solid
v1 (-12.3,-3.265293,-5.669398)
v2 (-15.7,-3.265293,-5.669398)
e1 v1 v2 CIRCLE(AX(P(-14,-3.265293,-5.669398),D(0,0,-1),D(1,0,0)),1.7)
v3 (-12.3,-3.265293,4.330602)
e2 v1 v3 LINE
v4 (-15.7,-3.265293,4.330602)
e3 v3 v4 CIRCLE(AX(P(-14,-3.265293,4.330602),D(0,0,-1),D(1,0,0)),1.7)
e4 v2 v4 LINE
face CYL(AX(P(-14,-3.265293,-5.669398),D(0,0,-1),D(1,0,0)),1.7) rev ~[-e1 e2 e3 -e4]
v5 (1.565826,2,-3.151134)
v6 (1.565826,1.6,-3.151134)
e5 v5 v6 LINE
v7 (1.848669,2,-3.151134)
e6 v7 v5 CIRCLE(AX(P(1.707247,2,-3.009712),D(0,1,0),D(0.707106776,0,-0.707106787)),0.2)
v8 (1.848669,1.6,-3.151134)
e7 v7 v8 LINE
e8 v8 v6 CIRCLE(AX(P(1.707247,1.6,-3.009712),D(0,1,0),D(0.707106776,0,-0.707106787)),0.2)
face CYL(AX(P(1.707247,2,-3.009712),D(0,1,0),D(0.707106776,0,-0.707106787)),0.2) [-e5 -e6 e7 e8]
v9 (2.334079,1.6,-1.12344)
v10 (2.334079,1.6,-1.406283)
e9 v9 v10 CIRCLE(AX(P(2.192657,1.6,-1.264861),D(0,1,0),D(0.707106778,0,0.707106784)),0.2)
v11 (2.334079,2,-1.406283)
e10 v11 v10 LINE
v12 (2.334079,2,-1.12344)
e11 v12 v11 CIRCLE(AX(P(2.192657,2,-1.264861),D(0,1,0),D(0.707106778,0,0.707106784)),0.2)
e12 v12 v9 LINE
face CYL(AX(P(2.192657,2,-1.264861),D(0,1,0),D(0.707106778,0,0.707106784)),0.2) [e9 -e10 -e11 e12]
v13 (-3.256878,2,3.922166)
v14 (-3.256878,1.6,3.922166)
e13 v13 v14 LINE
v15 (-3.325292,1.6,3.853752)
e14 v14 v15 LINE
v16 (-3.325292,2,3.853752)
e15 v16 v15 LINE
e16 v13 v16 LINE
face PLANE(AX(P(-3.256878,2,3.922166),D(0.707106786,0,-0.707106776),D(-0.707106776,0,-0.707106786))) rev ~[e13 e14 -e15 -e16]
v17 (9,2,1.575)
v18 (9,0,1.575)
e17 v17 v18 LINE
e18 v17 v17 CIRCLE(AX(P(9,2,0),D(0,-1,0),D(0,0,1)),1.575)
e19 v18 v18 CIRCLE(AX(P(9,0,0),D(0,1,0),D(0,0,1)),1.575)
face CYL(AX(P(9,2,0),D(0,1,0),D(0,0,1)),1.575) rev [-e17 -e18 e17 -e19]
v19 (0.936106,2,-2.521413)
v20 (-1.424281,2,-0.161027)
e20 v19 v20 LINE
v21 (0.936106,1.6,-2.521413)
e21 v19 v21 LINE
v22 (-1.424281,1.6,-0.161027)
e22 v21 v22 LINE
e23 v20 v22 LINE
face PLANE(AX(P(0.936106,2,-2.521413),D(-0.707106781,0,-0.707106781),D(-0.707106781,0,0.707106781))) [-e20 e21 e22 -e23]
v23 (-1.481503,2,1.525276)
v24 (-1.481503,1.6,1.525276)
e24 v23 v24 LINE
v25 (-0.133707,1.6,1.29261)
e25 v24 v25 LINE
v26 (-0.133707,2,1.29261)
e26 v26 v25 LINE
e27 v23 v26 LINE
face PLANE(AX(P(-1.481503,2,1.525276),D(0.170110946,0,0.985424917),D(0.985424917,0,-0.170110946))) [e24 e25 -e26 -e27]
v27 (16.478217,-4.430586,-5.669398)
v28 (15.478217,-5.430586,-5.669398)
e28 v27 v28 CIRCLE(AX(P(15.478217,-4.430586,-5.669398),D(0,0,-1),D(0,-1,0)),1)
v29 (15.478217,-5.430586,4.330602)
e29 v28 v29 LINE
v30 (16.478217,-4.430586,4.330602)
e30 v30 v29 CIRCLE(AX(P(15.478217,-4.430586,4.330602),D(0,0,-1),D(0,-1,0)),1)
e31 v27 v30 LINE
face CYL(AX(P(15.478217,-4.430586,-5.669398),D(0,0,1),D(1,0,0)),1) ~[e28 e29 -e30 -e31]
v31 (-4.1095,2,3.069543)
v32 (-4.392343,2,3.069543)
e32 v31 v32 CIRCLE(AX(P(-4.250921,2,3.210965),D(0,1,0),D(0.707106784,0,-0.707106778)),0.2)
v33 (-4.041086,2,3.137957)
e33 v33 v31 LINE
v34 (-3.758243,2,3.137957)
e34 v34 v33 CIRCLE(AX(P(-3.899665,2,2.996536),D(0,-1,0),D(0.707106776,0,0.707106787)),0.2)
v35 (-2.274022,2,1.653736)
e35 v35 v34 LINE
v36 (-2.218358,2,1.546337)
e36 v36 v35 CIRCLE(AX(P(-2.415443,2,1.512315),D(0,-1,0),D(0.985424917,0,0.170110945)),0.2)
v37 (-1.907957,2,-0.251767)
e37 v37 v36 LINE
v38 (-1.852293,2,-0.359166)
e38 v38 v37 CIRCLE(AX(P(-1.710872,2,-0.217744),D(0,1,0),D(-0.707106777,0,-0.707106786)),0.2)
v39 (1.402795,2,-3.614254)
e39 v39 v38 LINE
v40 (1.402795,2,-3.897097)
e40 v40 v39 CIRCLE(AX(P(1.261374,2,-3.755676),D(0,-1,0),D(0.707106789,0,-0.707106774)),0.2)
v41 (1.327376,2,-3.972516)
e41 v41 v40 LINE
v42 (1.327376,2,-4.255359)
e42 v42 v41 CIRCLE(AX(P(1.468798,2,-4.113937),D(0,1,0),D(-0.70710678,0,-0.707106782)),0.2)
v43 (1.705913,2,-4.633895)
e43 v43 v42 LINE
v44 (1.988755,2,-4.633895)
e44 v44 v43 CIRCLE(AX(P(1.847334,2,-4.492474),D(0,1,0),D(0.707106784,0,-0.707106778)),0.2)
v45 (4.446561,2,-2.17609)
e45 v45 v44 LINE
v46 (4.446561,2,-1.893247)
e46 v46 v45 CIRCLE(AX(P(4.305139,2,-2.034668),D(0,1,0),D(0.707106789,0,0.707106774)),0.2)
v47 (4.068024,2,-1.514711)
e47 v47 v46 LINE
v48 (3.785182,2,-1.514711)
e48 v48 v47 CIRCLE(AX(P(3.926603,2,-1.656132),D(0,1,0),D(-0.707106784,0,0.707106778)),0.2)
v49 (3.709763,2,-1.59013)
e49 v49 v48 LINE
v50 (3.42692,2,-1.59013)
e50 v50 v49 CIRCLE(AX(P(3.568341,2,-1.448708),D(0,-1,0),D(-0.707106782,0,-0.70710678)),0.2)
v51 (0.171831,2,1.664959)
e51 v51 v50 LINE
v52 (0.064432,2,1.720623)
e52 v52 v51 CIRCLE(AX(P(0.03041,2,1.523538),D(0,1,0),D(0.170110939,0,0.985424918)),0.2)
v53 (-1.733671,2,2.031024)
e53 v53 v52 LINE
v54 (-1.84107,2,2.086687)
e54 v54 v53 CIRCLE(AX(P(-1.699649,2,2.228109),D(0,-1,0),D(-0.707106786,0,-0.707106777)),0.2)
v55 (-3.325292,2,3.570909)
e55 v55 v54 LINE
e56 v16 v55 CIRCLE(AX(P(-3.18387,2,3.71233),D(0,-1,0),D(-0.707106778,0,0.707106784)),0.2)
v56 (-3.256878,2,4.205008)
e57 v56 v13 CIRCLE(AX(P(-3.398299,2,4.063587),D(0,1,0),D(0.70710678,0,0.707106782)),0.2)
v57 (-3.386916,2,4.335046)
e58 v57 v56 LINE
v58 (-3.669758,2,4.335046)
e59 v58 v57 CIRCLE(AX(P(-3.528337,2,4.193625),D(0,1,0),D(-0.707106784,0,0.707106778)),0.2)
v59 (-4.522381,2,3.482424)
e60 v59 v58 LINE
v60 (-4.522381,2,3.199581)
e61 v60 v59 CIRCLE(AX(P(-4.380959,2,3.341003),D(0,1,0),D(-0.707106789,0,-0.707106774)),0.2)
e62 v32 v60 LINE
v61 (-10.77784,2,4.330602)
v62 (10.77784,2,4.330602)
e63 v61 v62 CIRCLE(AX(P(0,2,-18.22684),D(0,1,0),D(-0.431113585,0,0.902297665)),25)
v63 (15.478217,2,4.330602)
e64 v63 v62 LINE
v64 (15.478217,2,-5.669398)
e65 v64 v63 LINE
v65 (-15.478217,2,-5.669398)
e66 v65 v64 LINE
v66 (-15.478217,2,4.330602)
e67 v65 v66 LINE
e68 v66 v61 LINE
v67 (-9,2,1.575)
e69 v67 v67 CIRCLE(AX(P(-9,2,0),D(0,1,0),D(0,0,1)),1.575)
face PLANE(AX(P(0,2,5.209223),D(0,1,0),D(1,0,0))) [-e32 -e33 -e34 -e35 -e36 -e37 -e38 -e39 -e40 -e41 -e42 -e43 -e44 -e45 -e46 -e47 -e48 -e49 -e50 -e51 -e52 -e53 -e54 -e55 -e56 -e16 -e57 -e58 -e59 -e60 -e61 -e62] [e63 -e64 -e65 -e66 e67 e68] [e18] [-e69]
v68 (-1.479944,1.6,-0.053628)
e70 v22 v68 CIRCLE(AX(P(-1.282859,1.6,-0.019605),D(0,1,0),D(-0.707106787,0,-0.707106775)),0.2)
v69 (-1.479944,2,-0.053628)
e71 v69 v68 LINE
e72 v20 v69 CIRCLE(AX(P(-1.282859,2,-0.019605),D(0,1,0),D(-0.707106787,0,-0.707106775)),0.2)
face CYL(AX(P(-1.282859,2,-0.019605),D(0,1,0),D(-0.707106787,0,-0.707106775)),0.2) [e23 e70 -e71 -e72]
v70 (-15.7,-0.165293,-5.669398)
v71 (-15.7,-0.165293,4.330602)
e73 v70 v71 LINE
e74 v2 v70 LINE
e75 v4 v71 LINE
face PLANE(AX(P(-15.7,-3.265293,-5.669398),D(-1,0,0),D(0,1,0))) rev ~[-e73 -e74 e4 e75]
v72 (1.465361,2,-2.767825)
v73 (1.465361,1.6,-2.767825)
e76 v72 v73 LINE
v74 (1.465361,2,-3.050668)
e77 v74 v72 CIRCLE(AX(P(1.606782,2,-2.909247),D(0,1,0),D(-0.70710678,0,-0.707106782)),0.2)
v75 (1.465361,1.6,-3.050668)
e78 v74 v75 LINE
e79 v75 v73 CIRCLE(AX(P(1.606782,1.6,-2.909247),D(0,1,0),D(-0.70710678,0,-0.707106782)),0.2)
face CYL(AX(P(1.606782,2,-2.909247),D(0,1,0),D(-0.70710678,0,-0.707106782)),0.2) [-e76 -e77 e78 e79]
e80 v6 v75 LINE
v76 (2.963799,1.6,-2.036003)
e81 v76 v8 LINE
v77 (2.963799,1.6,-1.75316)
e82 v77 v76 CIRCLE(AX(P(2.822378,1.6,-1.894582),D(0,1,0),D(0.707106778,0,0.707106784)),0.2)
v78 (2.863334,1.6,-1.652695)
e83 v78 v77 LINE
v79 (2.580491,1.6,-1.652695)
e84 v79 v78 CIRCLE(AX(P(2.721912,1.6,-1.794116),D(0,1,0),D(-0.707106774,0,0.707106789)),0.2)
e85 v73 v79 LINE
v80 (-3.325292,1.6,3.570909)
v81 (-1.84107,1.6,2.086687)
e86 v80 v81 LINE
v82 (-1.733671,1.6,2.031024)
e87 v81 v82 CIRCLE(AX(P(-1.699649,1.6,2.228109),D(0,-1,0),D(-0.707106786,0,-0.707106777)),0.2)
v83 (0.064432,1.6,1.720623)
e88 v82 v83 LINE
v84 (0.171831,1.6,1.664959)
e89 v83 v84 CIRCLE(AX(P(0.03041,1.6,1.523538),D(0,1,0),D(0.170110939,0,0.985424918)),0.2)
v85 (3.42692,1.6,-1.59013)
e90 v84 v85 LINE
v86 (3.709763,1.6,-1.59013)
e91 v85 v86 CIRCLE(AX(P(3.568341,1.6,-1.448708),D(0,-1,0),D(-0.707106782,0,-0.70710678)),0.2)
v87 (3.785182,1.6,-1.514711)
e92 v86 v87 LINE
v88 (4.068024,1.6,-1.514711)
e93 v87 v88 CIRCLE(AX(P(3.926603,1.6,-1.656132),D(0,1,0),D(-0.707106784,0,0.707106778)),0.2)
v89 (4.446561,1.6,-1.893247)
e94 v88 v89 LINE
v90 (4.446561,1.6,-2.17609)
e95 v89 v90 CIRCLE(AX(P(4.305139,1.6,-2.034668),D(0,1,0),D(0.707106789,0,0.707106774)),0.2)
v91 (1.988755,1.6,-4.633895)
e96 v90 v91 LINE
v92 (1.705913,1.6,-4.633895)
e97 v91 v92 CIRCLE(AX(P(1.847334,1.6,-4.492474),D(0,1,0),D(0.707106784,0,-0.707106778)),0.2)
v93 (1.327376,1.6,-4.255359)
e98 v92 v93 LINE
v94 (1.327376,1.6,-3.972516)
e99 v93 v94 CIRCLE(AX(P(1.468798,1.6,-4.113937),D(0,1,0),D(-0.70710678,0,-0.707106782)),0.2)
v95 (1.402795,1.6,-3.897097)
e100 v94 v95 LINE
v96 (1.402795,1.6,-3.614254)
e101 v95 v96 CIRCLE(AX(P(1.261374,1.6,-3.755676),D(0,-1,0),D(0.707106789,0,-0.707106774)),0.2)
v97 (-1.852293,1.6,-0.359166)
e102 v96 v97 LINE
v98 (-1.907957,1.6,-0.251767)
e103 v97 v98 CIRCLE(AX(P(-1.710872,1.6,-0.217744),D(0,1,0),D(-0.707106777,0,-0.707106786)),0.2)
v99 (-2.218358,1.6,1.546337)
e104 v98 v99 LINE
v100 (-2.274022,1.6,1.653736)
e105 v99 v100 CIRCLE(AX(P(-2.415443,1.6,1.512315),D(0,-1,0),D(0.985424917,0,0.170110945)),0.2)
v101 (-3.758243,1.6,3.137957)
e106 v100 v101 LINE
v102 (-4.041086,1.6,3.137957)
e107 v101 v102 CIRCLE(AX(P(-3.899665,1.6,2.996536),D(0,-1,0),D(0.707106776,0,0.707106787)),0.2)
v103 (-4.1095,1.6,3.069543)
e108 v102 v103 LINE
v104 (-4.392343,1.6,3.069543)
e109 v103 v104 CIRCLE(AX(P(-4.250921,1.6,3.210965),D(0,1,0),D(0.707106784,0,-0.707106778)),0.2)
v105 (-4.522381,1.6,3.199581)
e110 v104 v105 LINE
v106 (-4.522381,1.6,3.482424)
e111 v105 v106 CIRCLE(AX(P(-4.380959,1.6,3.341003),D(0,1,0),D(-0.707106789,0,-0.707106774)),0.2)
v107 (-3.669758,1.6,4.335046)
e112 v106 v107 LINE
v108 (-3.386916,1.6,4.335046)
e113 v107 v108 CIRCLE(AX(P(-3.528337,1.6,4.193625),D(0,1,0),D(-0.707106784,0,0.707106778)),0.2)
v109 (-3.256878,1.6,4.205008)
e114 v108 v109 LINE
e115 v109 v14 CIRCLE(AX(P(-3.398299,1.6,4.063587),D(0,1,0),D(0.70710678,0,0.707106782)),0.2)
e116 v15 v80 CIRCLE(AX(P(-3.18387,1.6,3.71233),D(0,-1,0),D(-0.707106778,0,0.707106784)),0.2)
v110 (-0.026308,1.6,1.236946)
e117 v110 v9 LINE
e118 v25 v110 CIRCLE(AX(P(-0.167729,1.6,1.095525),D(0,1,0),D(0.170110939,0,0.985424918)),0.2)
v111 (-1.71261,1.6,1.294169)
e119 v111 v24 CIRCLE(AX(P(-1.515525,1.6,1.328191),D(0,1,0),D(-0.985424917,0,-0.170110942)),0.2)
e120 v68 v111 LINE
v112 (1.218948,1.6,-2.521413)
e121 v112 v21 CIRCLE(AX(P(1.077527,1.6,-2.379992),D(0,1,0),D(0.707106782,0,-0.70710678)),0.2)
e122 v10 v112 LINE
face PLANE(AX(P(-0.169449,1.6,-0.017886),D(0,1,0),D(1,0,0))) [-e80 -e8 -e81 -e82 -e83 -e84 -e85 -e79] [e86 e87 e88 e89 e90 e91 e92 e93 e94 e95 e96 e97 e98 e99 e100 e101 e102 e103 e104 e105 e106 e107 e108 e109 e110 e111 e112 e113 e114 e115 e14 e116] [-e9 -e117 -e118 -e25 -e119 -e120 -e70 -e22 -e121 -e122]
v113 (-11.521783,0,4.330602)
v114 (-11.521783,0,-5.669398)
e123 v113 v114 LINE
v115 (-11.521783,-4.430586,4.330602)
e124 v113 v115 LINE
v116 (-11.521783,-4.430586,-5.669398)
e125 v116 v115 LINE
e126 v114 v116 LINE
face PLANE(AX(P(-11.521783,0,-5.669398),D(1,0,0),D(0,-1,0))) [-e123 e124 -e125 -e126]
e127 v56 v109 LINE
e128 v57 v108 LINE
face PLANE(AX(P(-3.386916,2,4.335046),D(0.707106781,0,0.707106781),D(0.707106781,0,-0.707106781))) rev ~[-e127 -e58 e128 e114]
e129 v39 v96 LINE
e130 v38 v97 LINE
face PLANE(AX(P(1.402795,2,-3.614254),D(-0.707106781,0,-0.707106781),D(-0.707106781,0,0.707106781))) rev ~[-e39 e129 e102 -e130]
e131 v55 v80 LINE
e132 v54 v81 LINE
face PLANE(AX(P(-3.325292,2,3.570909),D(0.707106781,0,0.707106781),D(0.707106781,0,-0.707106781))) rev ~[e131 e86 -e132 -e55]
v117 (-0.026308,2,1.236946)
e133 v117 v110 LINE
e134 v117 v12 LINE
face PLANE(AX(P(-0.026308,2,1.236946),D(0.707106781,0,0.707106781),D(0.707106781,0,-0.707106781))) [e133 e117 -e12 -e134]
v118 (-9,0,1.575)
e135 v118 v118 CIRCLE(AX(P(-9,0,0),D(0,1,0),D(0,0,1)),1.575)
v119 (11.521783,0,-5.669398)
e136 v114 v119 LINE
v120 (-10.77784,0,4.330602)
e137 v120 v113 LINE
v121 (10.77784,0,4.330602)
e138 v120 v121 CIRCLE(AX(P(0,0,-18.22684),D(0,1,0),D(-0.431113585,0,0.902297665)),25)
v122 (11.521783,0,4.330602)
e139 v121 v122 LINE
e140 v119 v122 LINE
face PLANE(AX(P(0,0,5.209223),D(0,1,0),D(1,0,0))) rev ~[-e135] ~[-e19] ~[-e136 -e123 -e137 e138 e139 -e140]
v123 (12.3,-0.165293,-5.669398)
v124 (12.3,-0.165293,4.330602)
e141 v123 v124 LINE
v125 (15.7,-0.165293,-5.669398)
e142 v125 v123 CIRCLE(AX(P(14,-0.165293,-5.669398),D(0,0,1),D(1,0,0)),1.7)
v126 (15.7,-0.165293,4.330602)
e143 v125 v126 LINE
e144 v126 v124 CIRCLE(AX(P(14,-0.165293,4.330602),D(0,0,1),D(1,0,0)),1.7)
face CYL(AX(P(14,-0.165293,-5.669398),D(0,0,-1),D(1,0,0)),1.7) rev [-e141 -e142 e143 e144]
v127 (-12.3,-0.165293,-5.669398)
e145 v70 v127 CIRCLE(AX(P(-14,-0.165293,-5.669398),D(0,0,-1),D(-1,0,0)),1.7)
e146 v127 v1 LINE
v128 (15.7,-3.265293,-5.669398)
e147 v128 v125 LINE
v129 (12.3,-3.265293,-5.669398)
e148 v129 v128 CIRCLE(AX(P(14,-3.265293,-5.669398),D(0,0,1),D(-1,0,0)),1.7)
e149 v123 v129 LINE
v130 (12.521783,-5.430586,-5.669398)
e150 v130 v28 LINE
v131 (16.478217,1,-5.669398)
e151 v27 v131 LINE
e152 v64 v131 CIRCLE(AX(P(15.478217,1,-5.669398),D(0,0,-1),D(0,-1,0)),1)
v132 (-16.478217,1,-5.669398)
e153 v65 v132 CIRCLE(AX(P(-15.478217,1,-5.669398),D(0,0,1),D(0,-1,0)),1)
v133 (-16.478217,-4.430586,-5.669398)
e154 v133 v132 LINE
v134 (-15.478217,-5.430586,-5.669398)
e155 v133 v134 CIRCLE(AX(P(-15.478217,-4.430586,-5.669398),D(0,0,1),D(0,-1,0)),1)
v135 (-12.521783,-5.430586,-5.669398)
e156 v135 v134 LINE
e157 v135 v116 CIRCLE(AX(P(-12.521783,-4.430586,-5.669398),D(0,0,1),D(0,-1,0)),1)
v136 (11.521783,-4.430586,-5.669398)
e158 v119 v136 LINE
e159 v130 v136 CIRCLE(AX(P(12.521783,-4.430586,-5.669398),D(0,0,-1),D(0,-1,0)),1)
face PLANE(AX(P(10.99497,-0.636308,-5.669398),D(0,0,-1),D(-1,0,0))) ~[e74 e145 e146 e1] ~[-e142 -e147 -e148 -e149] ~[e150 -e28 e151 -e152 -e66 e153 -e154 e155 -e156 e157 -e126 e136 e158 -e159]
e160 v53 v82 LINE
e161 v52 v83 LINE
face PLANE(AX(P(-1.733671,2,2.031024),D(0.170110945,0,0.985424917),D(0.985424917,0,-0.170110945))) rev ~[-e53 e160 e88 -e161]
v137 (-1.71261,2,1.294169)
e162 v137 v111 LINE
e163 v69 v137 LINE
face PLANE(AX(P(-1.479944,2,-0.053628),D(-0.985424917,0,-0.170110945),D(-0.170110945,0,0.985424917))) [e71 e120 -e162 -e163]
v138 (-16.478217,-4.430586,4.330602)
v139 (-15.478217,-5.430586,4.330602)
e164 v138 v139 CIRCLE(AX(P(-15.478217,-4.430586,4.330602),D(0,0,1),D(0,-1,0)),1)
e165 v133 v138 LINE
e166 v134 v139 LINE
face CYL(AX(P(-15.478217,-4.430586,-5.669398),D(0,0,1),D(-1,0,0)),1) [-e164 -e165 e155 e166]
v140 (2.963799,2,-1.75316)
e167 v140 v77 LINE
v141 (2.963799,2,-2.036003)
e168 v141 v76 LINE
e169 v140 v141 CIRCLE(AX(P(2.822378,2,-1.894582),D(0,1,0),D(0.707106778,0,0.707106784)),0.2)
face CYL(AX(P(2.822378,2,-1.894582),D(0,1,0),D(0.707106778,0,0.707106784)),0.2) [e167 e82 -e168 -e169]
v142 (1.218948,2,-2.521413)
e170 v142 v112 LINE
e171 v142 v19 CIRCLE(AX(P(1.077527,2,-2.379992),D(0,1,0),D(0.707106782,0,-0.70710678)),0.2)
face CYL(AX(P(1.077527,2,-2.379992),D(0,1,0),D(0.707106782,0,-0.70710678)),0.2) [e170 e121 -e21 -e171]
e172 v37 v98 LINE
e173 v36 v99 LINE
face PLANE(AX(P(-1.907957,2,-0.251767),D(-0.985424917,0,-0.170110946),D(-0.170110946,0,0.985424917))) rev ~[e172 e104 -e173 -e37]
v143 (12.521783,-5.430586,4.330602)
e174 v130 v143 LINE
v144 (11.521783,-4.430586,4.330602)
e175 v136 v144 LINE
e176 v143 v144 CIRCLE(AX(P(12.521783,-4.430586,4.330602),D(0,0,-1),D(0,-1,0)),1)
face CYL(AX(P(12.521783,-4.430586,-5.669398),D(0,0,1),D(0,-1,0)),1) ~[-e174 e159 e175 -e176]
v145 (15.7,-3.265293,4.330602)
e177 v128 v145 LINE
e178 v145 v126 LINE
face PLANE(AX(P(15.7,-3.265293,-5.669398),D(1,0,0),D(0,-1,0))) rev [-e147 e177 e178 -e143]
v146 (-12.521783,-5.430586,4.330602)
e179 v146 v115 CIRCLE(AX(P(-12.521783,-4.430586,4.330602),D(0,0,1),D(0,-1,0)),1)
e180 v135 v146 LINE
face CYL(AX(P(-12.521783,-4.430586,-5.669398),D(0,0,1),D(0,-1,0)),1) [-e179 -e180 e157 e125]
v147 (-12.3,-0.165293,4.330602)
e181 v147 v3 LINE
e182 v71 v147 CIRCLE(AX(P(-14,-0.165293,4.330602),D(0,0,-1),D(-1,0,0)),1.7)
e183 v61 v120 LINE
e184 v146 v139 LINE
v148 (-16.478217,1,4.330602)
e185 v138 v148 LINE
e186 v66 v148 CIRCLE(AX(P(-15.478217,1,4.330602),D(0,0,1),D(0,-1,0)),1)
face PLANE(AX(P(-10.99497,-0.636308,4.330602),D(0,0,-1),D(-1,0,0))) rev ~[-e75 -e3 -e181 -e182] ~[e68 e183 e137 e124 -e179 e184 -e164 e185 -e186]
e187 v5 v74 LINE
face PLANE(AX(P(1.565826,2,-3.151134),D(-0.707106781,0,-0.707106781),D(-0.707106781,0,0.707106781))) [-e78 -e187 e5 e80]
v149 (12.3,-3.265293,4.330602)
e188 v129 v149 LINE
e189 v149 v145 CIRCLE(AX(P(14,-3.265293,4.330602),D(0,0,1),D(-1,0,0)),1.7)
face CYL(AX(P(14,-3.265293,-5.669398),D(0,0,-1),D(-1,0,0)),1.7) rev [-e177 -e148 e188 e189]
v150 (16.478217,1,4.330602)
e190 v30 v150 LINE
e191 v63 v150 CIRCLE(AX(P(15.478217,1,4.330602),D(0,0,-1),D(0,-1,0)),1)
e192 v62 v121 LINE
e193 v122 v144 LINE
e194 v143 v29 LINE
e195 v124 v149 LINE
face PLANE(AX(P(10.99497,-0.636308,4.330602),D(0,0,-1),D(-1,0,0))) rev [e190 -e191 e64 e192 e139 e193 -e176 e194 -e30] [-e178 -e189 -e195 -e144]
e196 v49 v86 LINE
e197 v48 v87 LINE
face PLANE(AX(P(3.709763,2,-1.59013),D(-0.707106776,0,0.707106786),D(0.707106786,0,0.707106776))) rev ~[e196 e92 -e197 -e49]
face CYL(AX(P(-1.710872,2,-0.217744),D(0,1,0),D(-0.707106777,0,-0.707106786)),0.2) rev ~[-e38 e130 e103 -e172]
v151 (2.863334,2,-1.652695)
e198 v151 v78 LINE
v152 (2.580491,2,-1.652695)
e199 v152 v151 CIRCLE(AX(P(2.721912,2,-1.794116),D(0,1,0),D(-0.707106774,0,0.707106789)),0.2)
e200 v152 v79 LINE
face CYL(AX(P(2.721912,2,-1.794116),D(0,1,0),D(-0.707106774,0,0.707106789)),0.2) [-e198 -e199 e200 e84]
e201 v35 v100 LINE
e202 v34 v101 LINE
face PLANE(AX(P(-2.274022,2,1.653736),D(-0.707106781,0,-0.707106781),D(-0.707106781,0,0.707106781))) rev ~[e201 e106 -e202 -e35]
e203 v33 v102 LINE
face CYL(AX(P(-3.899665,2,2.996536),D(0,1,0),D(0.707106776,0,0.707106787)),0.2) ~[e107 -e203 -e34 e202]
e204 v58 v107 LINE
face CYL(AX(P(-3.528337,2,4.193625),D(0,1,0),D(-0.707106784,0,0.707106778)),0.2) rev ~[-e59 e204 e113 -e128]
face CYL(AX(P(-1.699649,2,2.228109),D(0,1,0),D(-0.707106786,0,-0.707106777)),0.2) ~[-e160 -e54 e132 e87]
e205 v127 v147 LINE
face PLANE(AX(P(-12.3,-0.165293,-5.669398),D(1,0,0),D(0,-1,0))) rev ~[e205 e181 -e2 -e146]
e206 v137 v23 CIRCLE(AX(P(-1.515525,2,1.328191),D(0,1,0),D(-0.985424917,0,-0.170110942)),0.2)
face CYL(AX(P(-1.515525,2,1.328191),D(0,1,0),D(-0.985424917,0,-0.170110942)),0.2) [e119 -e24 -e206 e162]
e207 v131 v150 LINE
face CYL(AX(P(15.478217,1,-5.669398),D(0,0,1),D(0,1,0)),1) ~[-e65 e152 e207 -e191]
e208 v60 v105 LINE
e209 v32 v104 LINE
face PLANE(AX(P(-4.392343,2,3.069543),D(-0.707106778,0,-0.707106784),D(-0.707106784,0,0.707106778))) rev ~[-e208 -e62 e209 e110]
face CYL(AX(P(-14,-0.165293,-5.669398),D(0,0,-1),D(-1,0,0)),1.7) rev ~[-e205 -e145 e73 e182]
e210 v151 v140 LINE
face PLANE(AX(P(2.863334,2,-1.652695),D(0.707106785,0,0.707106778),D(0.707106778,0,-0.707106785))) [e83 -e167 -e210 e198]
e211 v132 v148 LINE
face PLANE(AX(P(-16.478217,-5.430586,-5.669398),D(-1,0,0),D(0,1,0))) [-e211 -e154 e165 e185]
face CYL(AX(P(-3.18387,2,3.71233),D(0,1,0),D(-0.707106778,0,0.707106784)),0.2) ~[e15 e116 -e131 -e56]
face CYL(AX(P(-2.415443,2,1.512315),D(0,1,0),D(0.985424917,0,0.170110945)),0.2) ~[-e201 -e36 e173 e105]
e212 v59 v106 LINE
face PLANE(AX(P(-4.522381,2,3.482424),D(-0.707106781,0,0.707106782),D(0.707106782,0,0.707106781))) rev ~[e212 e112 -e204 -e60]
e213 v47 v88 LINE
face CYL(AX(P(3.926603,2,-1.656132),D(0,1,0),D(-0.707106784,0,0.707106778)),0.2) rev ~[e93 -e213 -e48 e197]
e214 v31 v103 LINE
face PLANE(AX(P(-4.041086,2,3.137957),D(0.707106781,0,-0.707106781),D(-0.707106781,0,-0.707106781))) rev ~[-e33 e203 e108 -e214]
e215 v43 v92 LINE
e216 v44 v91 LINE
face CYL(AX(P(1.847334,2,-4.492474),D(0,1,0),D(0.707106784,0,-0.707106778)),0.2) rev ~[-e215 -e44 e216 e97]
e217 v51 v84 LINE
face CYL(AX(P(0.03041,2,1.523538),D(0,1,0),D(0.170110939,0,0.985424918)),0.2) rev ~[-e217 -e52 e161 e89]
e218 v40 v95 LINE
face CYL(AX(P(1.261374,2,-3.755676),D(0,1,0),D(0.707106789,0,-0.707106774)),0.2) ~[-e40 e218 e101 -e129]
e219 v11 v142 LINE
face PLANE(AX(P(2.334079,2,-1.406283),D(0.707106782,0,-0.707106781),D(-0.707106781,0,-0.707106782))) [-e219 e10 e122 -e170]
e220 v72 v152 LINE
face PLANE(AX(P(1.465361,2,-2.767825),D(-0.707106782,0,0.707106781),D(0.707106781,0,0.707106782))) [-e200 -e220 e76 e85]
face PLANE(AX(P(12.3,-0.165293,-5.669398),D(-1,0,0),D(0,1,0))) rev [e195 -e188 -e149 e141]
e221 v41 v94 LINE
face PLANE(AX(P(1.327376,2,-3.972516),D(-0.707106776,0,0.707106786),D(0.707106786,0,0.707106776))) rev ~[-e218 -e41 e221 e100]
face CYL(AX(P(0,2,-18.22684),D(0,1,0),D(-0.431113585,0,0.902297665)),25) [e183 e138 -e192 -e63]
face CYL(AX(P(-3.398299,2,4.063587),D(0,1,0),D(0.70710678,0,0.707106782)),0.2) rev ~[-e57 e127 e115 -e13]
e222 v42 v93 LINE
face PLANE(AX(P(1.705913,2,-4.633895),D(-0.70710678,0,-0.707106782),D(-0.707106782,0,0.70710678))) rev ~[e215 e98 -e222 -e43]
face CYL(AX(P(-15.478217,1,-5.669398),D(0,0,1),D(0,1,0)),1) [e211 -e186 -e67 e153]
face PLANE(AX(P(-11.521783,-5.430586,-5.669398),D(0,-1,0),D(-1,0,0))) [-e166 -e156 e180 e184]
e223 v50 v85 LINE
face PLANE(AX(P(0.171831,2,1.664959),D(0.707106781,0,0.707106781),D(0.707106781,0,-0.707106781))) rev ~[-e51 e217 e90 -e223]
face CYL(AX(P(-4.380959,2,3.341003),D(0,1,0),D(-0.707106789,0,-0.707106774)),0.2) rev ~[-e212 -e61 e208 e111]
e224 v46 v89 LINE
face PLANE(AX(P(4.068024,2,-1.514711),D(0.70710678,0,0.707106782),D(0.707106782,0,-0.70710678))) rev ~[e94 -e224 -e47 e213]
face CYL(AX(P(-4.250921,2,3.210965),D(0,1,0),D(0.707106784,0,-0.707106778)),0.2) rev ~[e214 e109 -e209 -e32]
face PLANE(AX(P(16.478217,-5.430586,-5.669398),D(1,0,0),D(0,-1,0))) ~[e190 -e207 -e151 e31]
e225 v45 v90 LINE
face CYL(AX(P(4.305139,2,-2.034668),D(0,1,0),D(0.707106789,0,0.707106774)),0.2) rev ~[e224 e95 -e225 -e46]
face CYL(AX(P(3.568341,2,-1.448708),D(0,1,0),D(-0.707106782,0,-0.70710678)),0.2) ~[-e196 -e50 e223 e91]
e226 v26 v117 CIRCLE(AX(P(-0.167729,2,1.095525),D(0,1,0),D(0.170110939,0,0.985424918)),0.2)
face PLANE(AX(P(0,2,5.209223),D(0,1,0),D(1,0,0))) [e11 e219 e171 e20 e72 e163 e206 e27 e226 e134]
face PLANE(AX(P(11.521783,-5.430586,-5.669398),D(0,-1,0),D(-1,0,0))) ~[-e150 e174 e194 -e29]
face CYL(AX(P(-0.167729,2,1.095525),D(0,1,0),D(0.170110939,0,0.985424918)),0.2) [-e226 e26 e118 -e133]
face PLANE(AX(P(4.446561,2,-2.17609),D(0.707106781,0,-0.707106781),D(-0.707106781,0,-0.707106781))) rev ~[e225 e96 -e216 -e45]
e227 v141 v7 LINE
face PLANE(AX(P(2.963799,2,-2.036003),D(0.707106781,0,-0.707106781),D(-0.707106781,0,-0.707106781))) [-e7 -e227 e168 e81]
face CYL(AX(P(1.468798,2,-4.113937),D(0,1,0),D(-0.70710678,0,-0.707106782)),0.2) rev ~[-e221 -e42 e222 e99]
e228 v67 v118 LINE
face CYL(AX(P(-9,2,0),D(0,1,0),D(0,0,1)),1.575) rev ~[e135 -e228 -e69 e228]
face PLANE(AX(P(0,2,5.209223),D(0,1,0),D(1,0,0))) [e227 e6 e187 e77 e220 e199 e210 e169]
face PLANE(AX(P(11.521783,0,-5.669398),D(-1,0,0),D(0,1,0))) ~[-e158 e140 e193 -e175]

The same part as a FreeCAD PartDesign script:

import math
import FreeCAD as App
import Part
import Sketcher
Q = App.Units.Quantity


def edges_at(feature, points):
    """Names of the edges that pass closest to the given points."""
    edges = feature.Shape.Edges
    near = lambda p: min(range(len(edges)), key=lambda i: edges[i].distToShape(Part.Vertex(*p))[0])
    return sorted({f"Edge{near(p) + 1}" for p in points})

doc = App.newDocument("Part")
body = doc.addObject("PartDesign::Body", "Body")

sketch1 = body.newObject("Sketcher::SketchObject", "Sketch")
sketch1.AttachmentSupport = (doc.getObject("XZ_Plane"), [""])
sketch1.MapMode = "FlatFace"
sketch1.addGeometry([
    Part.LineSegment(App.Vector(-13.6, -4.8, 0), App.Vector(-13.6, 4.8, 0)),
    Part.LineSegment(App.Vector(-13.6, 4.8, 0), App.Vector(13.6, 4.8, 0)),
    Part.LineSegment(App.Vector(13.6, 4.8, 0), App.Vector(13.6, -4.8, 0)),
    Part.LineSegment(App.Vector(13.6, -4.8, 0), App.Vector(-13.6, -4.8, 0)),
    Part.Circle(App.Vector(-9, 0, 0), App.Vector(0, 0, 1), 1.6),
    Part.Circle(App.Vector(9, 0, 0), App.Vector(0, 0, 1), 1.6),
], False)
sketch1.addConstraint([
    Sketcher.Constraint("Coincident", 0, 2, 1, 1),
    Sketcher.Constraint("Coincident", 1, 2, 2, 1),
    Sketcher.Constraint("Coincident", 2, 2, 3, 1),
    Sketcher.Constraint("Coincident", 3, 2, 0, 1),
    Sketcher.Constraint("Vertical", 0),
    Sketcher.Constraint("Horizontal", 1),
    Sketcher.Constraint("Vertical", 2),
    Sketcher.Constraint("Horizontal", 3),
    Sketcher.Constraint("Equal", 4, 5),
    Sketcher.Constraint("Symmetric", 4, 3, 5, 3, -1, 1),
    Sketcher.Constraint("Symmetric", 0, 2, 2, 2, -1, 1),
    Sketcher.Constraint("PointOnObject", 4, 3, -1),
    Sketcher.Constraint("Diameter", 4, Q("3.15 mm")),
    Sketcher.Constraint("DistanceX", 4, 3, -1, 1, Q("9 mm")),
    Sketcher.Constraint("DistanceX", 1, 1, 1, 2, Q("27.112782 mm")),
    Sketcher.Constraint("DistanceY", -1, 1, 0, 2, Q("4.759398 mm")),
])
pad1 = body.newObject("PartDesign::Pad", "Pad")
pad1.Profile = sketch1
pad1.Length = 2
pad1.Reversed = True

sketch2 = body.newObject("Sketcher::SketchObject", "Sketch001")
sketch2.AttachmentSupport = (doc.getObject("XY_Plane"), [""])
sketch2.MapMode = "FlatFace"
sketch2.AttachmentOffset = App.Placement(App.Vector(0, 0, -4.759398), App.Rotation())
sketch2.addGeometry([
    Part.LineSegment(App.Vector(13.6, 2, 0), App.Vector(13.6, 0, 0)),
    Part.LineSegment(App.Vector(13.6, 0, 0), App.Vector(-13.6, 0, 0)),
    Part.LineSegment(App.Vector(-13.6, 0, 0), App.Vector(-13.6, 2, 0)),
    Part.LineSegment(App.Vector(-13.6, 2, 0), App.Vector(13.6, 2, 0)),
], False)
sketch2.addConstraint([
    Sketcher.Constraint("Coincident", 0, 2, 1, 1),
    Sketcher.Constraint("Coincident", 1, 2, 2, 1),
    Sketcher.Constraint("Coincident", 2, 2, 3, 1),
    Sketcher.Constraint("Coincident", 3, 2, 0, 1),
    Sketcher.Constraint("Vertical", 0),
    Sketcher.Constraint("Horizontal", 1),
    Sketcher.Constraint("Vertical", 2),
    Sketcher.Constraint("Horizontal", 3),
    Sketcher.Constraint("Symmetric", 0, 2, 1, 2, -1, 1),
    Sketcher.Constraint("DistanceY", 0, 2, 0, 1, Q("2 mm")),
    Sketcher.Constraint("DistanceX", 1, 2, 1, 1, Q("27.112782 mm")),
])
pad2 = body.newObject("PartDesign::Pad", "Pad001")
pad2.Profile = sketch2
pad2.Length = 0.91
pad2.Reversed = True

sketch3 = body.newObject("Sketcher::SketchObject", "Sketch002")
sketch3.AttachmentSupport = (doc.getObject("XZ_Plane"), [""])
sketch3.MapMode = "FlatFace"
sketch3.addGeometry([
    Part.LineSegment(App.Vector(-6.72, 4.76, 0), App.Vector(-3, 5.76, 0)),
    Part.LineSegment(App.Vector(-3, 5.76, 0), App.Vector(-14.56, 5.76, 0)),
    Part.LineSegment(App.Vector(-14.56, 5.76, 0), App.Vector(-14.56, -5.76, 0)),
    Part.LineSegment(App.Vector(-14.56, -5.76, 0), App.Vector(-3, -5.76, 0)),
    Part.LineSegment(App.Vector(-3, -5.76, 0), App.Vector(-3.35, -5.67, 0)),
    Part.LineSegment(App.Vector(-3.35, -5.67, 0), App.Vector(-10.04, -3.86, 0)),
    Part.ArcOfCircle(Part.Circle(App.Vector(-9, 0, 0), App.Vector(0, 0, 1), 4), math.radians(105), math.radians(255)),
    Part.LineSegment(App.Vector(-10.04, 3.86, 0), App.Vector(-6.72, 4.76, 0)),
    Part.LineSegment(App.Vector(6.72, 4.76, 0), App.Vector(10.04, 3.86, 0)),
    Part.ArcOfCircle(Part.Circle(App.Vector(9, 0, 0), App.Vector(0, 0, 1), 4), math.radians(0), math.radians(75)),
    Part.ArcOfCircle(Part.Circle(App.Vector(9, 0, 0), App.Vector(0, 0, 1), 4), math.radians(-75), math.radians(0)),
    Part.LineSegment(App.Vector(10.04, -3.86, 0), App.Vector(3.35, -5.67, 0)),
    Part.LineSegment(App.Vector(3.35, -5.67, 0), App.Vector(3, -5.76, 0)),
    Part.LineSegment(App.Vector(3, -5.76, 0), App.Vector(14.56, -5.76, 0)),
    Part.LineSegment(App.Vector(14.56, -5.76, 0), App.Vector(14.56, 5.76, 0)),
    Part.LineSegment(App.Vector(14.56, 5.76, 0), App.Vector(3, 5.76, 0)),
    Part.LineSegment(App.Vector(3, 5.76, 0), App.Vector(6.72, 4.76, 0)),
], False)
sketch3.addConstraint([
    Sketcher.Constraint("Coincident", 0, 2, 1, 1),
    Sketcher.Constraint("Coincident", 1, 2, 2, 1),
    Sketcher.Constraint("Coincident", 2, 2, 3, 1),
    Sketcher.Constraint("Coincident", 3, 2, 4, 1),
    Sketcher.Constraint("Coincident", 4, 2, 5, 1),
    Sketcher.Constraint("Tangent", 5, 2, 6, 2),
    Sketcher.Constraint("Tangent", 6, 1, 7, 1),
    Sketcher.Constraint("Coincident", 7, 2, 0, 1),
    Sketcher.Constraint("Tangent", 8, 2, 9, 2),
    Sketcher.Constraint("Tangent", 9, 1, 10, 2),
    Sketcher.Constraint("Tangent", 10, 1, 11, 1),
    Sketcher.Constraint("Coincident", 11, 2, 12, 1),
    Sketcher.Constraint("Coincident", 12, 2, 13, 1),
    Sketcher.Constraint("Coincident", 13, 2, 14, 1),
    Sketcher.Constraint("Coincident", 14, 2, 15, 1),
    Sketcher.Constraint("Coincident", 15, 2, 16, 1),
    Sketcher.Constraint("Coincident", 16, 2, 8, 1),
    Sketcher.Constraint("Horizontal", 1),
    Sketcher.Constraint("Vertical", 2),
    Sketcher.Constraint("Horizontal", 3),
    Sketcher.Constraint("Horizontal", 13),
    Sketcher.Constraint("Vertical", 14),
    Sketcher.Constraint("Horizontal", 15),
    Sketcher.Constraint("Equal", 6, 9),
    Sketcher.Constraint("Equal", 9, 10),
    Sketcher.Constraint("Symmetric", 6, 3, 9, 3, -1, 1),
    Sketcher.Constraint("Symmetric", 0, 2, 12, 2, -1, 1),
    Sketcher.Constraint("Symmetric", 2, 2, 14, 2, -1, 1),
    Sketcher.Constraint("Symmetric", 6, 1, 8, 2, -2),
    Sketcher.Constraint("Symmetric", 4, 2, 11, 2, -2),
    Sketcher.Constraint("Symmetric", 3, 2, 12, 2, -2),
    Sketcher.Constraint("PointOnObject", 9, 1, -1),
    Sketcher.Constraint("Parallel", 4, 5),
    Sketcher.Constraint("Parallel", 0, 7),
    Sketcher.Constraint("Parallel", 8, 16),
    Sketcher.Constraint("Horizontal", 7, 2, 16, 2),
    Sketcher.Constraint("Radius", 6, Q("4 mm")),
    Sketcher.Constraint("DistanceX", 6, 3, -1, 1, Q("9 mm")),
    Sketcher.Constraint("DistanceX", 0, 2, -1, 1, Q("3 mm")),
    Sketcher.Constraint("DistanceY", 2, 2, 2, 1, Q("11.53 mm")),
    Sketcher.Constraint("DistanceY", 4, 2, -1, 1, Q("5.669398 mm")),
    Sketcher.Constraint("DistanceY", -1, 1, 7, 2, Q("4.759398 mm")),
    Sketcher.Constraint("DistanceX", 1, 2, 1, 1, Q("11.556442 mm")),
])
pocket1 = body.newObject("PartDesign::Pocket", "Pocket")
pocket1.Profile = sketch3
pocket1.Type = "ThroughAll"

sketch4 = body.newObject("Sketcher::SketchObject", "Sketch003")
sketch4.AttachmentSupport = (doc.getObject("XY_Plane"), [""])
sketch4.MapMode = "FlatFace"
sketch4.AttachmentOffset = App.Placement(App.Vector(0, 0, -5.669398), App.Rotation())
sketch4.addGeometry([
    Part.LineSegment(App.Vector(-11.5, -6.4, 0), App.Vector(-13.6, -6.4, 0)),
    Part.LineSegment(App.Vector(-13.6, -6.4, 0), App.Vector(-13.6, 3.7, 0)),
    Part.LineSegment(App.Vector(-13.6, 3.7, 0), App.Vector(-11.5, 3.7, 0)),
    Part.LineSegment(App.Vector(-11.5, 3.7, 0), App.Vector(-11.5, -6.4, 0)),
    Part.LineSegment(App.Vector(13.6, -6.4, 0), App.Vector(11.5, -6.4, 0)),
    Part.LineSegment(App.Vector(11.5, -6.4, 0), App.Vector(11.5, 3.7, 0)),
    Part.LineSegment(App.Vector(11.5, 3.7, 0), App.Vector(13.6, 3.7, 0)),
    Part.LineSegment(App.Vector(13.6, 3.7, 0), App.Vector(13.6, -6.4, 0)),
], False)
sketch4.addConstraint([
    Sketcher.Constraint("Coincident", 0, 2, 1, 1),
    Sketcher.Constraint("Coincident", 1, 2, 2, 1),
    Sketcher.Constraint("Coincident", 2, 2, 3, 1),
    Sketcher.Constraint("Coincident", 3, 2, 0, 1),
    Sketcher.Constraint("Coincident", 4, 2, 5, 1),
    Sketcher.Constraint("Coincident", 5, 2, 6, 1),
    Sketcher.Constraint("Coincident", 6, 2, 7, 1),
    Sketcher.Constraint("Coincident", 7, 2, 4, 1),
    Sketcher.Constraint("Horizontal", 0),
    Sketcher.Constraint("Vertical", 1),
    Sketcher.Constraint("Horizontal", 2),
    Sketcher.Constraint("Vertical", 3),
    Sketcher.Constraint("Horizontal", 4),
    Sketcher.Constraint("Vertical", 5),
    Sketcher.Constraint("Horizontal", 6),
    Sketcher.Constraint("Vertical", 7),
    Sketcher.Constraint("Symmetric", 3, 2, 4, 2, -2),
    Sketcher.Constraint("Symmetric", 1, 2, 6, 2, -2),
    Sketcher.Constraint("DistanceY", 1, 1, 1, 2, Q("10.08913 mm")),
    Sketcher.Constraint("DistanceX", 0, 2, -1, 1, Q("13.618299 mm")),
    Sketcher.Constraint("DistanceX", 0, 2, 0, 1, Q("2.096517 mm")),
    Sketcher.Constraint("DistanceY", 0, 2, -1, 1, Q("6.403006 mm")),
])
pocket2 = body.newObject("PartDesign::Pocket", "Pocket001")
pocket2.Profile = sketch4
pocket2.Type = "ThroughAll"
pocket2.Reversed = True

sketch5 = body.newObject("Sketcher::SketchObject", "Sketch004")
sketch5.AttachmentSupport = (doc.getObject("XY_Plane"), [""])
sketch5.MapMode = "FlatFace"
sketch5.AttachmentOffset = App.Placement(App.Vector(0, 0, -5.669398), App.Rotation())
sketch5.addGeometry([
    Part.LineSegment(App.Vector(-3.4, 0, 0), App.Vector(-11.5, 0, 0)),
    Part.LineSegment(App.Vector(-11.5, 0, 0), App.Vector(-11.5, -5.4, 0)),
    Part.LineSegment(App.Vector(-11.5, -5.4, 0), App.Vector(-16.5, -5.4, 0)),
    Part.LineSegment(App.Vector(-16.5, -5.4, 0), App.Vector(-16.5, 2, 0)),
    Part.LineSegment(App.Vector(-16.5, 2, 0), App.Vector(-3.4, 2, 0)),
    Part.LineSegment(App.Vector(-3.4, 2, 0), App.Vector(-3.4, 0, 0)),
    Part.LineSegment(App.Vector(-15.7, -0.2, 0), App.Vector(-15.7, -3.3, 0)),
    Part.ArcOfCircle(Part.Circle(App.Vector(-14, -3.3, 0), App.Vector(0, 0, 1), 1.7), math.radians(180), math.radians(360)),
    Part.LineSegment(App.Vector(-12.3, -3.3, 0), App.Vector(-12.3, -0.2, 0)),
    Part.ArcOfCircle(Part.Circle(App.Vector(-14, -0.2, 0), App.Vector(0, 0, 1), 1.7), math.radians(0), math.radians(180)),
], False)
sketch5.addConstraint([
    Sketcher.Constraint("Coincident", 0, 2, 1, 1),
    Sketcher.Constraint("Coincident", 1, 2, 2, 1),
    Sketcher.Constraint("Coincident", 2, 2, 3, 1),
    Sketcher.Constraint("Coincident", 3, 2, 4, 1),
    Sketcher.Constraint("Coincident", 4, 2, 5, 1),
    Sketcher.Constraint("Coincident", 5, 2, 0, 1),
    Sketcher.Constraint("Tangent", 6, 2, 7, 1),
    Sketcher.Constraint("Tangent", 7, 2, 8, 1),
    Sketcher.Constraint("Tangent", 8, 2, 9, 1),
    Sketcher.Constraint("Tangent", 9, 2, 6, 1),
    Sketcher.Constraint("Horizontal", 0),
    Sketcher.Constraint("Vertical", 1),
    Sketcher.Constraint("Horizontal", 2),
    Sketcher.Constraint("Vertical", 3),
    Sketcher.Constraint("Horizontal", 4),
    Sketcher.Constraint("Vertical", 5),
    Sketcher.Constraint("Vertical", 6),
    Sketcher.Constraint("Vertical", 8),
    Sketcher.Constraint("PointOnObject", 0, 2, -1),
    Sketcher.Constraint("Radius", 7, Q("1.7 mm")),
    Sketcher.Constraint("DistanceY", 5, 2, 5, 1, Q("2 mm")),
    Sketcher.Constraint("DistanceY", 6, 2, 6, 1, Q("3.1 mm")),
    Sketcher.Constraint("DistanceX", 7, 3, -1, 1, Q("14 mm")),
    Sketcher.Constraint("DistanceX", 0, 2, 0, 1, Q("8.168031 mm")),
    Sketcher.Constraint("DistanceX", 2, 2, 2, 1, Q("4.956435 mm")),
    Sketcher.Constraint("DistanceY", 1, 2, 1, 1, Q("5.430586 mm")),
    Sketcher.Constraint("DistanceX", 4, 2, -1, 1, Q("3.353751 mm")),
    Sketcher.Constraint("DistanceY", 7, 3, -1, 1, Q("3.265293 mm")),
])
pad3 = body.newObject("PartDesign::Pad", "Pad002")
pad3.Profile = sketch5
pad3.Length = 10

sketch6 = body.newObject("Sketcher::SketchObject", "Sketch005")
sketch6.AttachmentSupport = (doc.getObject("XZ_Plane"), [""])
sketch6.MapMode = "FlatFace"
sketch6.AttachmentOffset = App.Placement(App.Vector(0, 0, -2), App.Rotation())
sketch6.addGeometry(Part.Circle(App.Vector(-9, 0, 0), App.Vector(0, 0, 1), 1.6), False)
sketch6.addConstraint([
    Sketcher.Constraint("PointOnObject", 0, 3, -1),
    Sketcher.Constraint("Diameter", 0, Q("3.15 mm")),
    Sketcher.Constraint("DistanceX", 0, 3, -1, 1, Q("9 mm")),
])
pocket3 = body.newObject("PartDesign::Pocket", "Pocket002")
pocket3.Profile = sketch6
pocket3.Length = 10
pocket3.Reversed = True
doc.recompute()

mirrored = body.newObject("PartDesign::Mirrored", "Mirrored")
mirrored.Originals = [pad3, pocket3]
mirrored.MirrorPlane = (doc.getObject("YZ_Plane"), [""])
body.Tip = mirrored

sketch7 = body.newObject("Sketcher::SketchObject", "Sketch006")
sketch7.AttachmentSupport = (doc.getObject("XZ_Plane"), [""])
sketch7.MapMode = "FlatFace"
sketch7.AttachmentOffset = App.Placement(App.Vector(0, 0, -2), App.Rotation())
sketch7.addGeometry([
    Part.LineSegment(App.Vector(6.7, 4.8, 0), App.Vector(-6.7, 4.8, 0)),
    Part.LineSegment(App.Vector(-6.7, 4.8, 0), App.Vector(-8.3, 4.3, 0)),
    Part.LineSegment(App.Vector(-8.3, 4.3, 0), App.Vector(-10.8, 4.3, 0)),
    Part.ArcOfCircle(Part.Circle(App.Vector(0, -18.2, 0), App.Vector(0, 0, 1), 25), math.radians(64), math.radians(116)),
    Part.LineSegment(App.Vector(10.8, 4.3, 0), App.Vector(8.3, 4.3, 0)),
    Part.LineSegment(App.Vector(8.3, 4.3, 0), App.Vector(6.7, 4.8, 0)),
], False)
sketch7.addConstraint([
    Sketcher.Constraint("Coincident", 0, 2, 1, 1),
    Sketcher.Constraint("Coincident", 1, 2, 2, 1),
    Sketcher.Constraint("Coincident", 2, 2, 3, 2),
    Sketcher.Constraint("Coincident", 3, 1, 4, 1),
    Sketcher.Constraint("Coincident", 4, 2, 5, 1),
    Sketcher.Constraint("Coincident", 5, 2, 0, 1),
    Sketcher.Constraint("Horizontal", 0),
    Sketcher.Constraint("Horizontal", 2),
    Sketcher.Constraint("Horizontal", 4),
    Sketcher.Constraint("Symmetric", 2, 2, 3, 1, -2),
    Sketcher.Constraint("Equal", 2, 4),
    Sketcher.Constraint("Equal", 1, 5),
    Sketcher.Constraint("Radius", 3, Q("25 mm")),
    Sketcher.Constraint("DistanceY", -1, 1, 0, 2, Q("4.759398 mm")),
    Sketcher.Constraint("DistanceY", -1, 1, 1, 2, Q("4.330602 mm")),
    Sketcher.Constraint("DistanceX", 1, 2, 3, 1, Q("19.085502 mm")),
    Sketcher.Constraint("DistanceX", 0, 2, 0, 1, Q("13.441995 mm")),
    Sketcher.Constraint("DistanceX", 2, 2, 2, 1, Q("2.470178 mm")),
])
pad4 = body.newObject("PartDesign::Pad", "Pad003")
pad4.Profile = sketch7
pad4.Length = 2
doc.recompute()

fillet = body.newObject("PartDesign::Fillet", "Fillet")
fillet.Base = (pad4, edges_at(pad4, [
    (-16.478, 2, -0.669),
    (-16.478, -5.431, -0.669),
    (-11.522, -5.431, -0.669),
    (11.522, -5.431, -0.669),
    (16.478, -5.431, -0.669),
    (16.478, 2, -0.669),
]))
fillet.Radius = 1

sketch8 = body.newObject("Sketcher::SketchObject", "Sketch007")
sketch8.AttachmentSupport = (doc.getObject("XZ_Plane"), [""])
sketch8.MapMode = "FlatFace"
sketch8.AttachmentOffset = App.Placement(App.Vector(0, 0, -2), App.Rotation())
sketch8.addGeometry([
    Part.LineSegment(App.Vector(4.45, -2.18, 0), App.Vector(1.99, -4.63, 0)),
    Part.ArcOfCircle(Part.Circle(App.Vector(1.85, -4.49, 0), App.Vector(0, 0, 1), 0.2), math.radians(-135), math.radians(-45)),
    Part.LineSegment(App.Vector(1.71, -4.63, 0), App.Vector(1.33, -4.26, 0)),
    Part.ArcOfCircle(Part.Circle(App.Vector(1.47, -4.11, 0), App.Vector(0, 0, 1), 0.2), math.radians(135), math.radians(225)),
    Part.LineSegment(App.Vector(1.33, -3.97, 0), App.Vector(1.4, -3.9, 0)),
    Part.ArcOfCircle(Part.Circle(App.Vector(1.26, -3.76, 0), App.Vector(0, 0, 1), 0.2), math.radians(-45), math.radians(45)),
    Part.LineSegment(App.Vector(1.4, -3.61, 0), App.Vector(-1.85, -0.36, 0)),
    Part.ArcOfCircle(Part.Circle(App.Vector(-1.71, -0.22, 0), App.Vector(0, 0, 1), 0.2), math.radians(-170), math.radians(-135)),
    Part.LineSegment(App.Vector(-1.91, -0.25, 0), App.Vector(-2.22, 1.55, 0)),
    Part.ArcOfCircle(Part.Circle(App.Vector(-2.42, 1.51, 0), App.Vector(0, 0, 1), 0.2), math.radians(10), math.radians(45)),
    Part.LineSegment(App.Vector(-2.27, 1.65, 0), App.Vector(-3.76, 3.14, 0)),
    Part.ArcOfCircle(Part.Circle(App.Vector(-3.9, 3, 0), App.Vector(0, 0, 1), 0.2), math.radians(45), math.radians(135)),
    Part.LineSegment(App.Vector(-4.04, 3.14, 0), App.Vector(-4.11, 3.07, 0)),
    Part.ArcOfCircle(Part.Circle(App.Vector(-4.25, 3.21, 0), App.Vector(0, 0, 1), 0.2), math.radians(-135), math.radians(-45)),
    Part.LineSegment(App.Vector(-4.39, 3.07, 0), App.Vector(-4.52, 3.2, 0)),
    Part.ArcOfCircle(Part.Circle(App.Vector(-4.38, 3.34, 0), App.Vector(0, 0, 1), 0.2), math.radians(135), math.radians(225)),
    Part.LineSegment(App.Vector(-4.52, 3.48, 0), App.Vector(-3.67, 4.34, 0)),
    Part.ArcOfCircle(Part.Circle(App.Vector(-3.53, 4.19, 0), App.Vector(0, 0, 1), 0.2), math.radians(45), math.radians(135)),
    Part.LineSegment(App.Vector(-3.39, 4.34, 0), App.Vector(-3.26, 4.21, 0)),
    Part.ArcOfCircle(Part.Circle(App.Vector(-3.4, 4.06, 0), App.Vector(0, 0, 1), 0.2), math.radians(-45), math.radians(45)),
    Part.LineSegment(App.Vector(-3.26, 3.92, 0), App.Vector(-3.33, 3.85, 0)),
    Part.ArcOfCircle(Part.Circle(App.Vector(-3.18, 3.71, 0), App.Vector(0, 0, 1), 0.2), math.radians(135), math.radians(225)),
    Part.LineSegment(App.Vector(-3.33, 3.57, 0), App.Vector(-1.84, 2.09, 0)),
    Part.ArcOfCircle(Part.Circle(App.Vector(-1.7, 2.23, 0), App.Vector(0, 0, 1), 0.2), math.radians(-135), math.radians(-100)),
    Part.LineSegment(App.Vector(-1.73, 2.03, 0), App.Vector(0.06, 1.72, 0)),
    Part.ArcOfCircle(Part.Circle(App.Vector(0.03, 1.52, 0), App.Vector(0, 0, 1), 0.2), math.radians(45), math.radians(80)),
    Part.LineSegment(App.Vector(0.17, 1.66, 0), App.Vector(3.43, -1.59, 0)),
    Part.ArcOfCircle(Part.Circle(App.Vector(3.57, -1.45, 0), App.Vector(0, 0, 1), 0.2), math.radians(-135), math.radians(-45)),
    Part.LineSegment(App.Vector(3.71, -1.59, 0), App.Vector(3.79, -1.51, 0)),
    Part.ArcOfCircle(Part.Circle(App.Vector(3.93, -1.66, 0), App.Vector(0, 0, 1), 0.2), math.radians(45), math.radians(135)),
    Part.LineSegment(App.Vector(4.07, -1.51, 0), App.Vector(4.45, -1.89, 0)),
    Part.ArcOfCircle(Part.Circle(App.Vector(4.31, -2.03, 0), App.Vector(0, 0, 1), 0.2), math.radians(-45), math.radians(45)),
    Part.LineSegment(App.Vector(1.22, -2.52, 0), App.Vector(2.33, -1.41, 0)),
    Part.ArcOfCircle(Part.Circle(App.Vector(2.19, -1.26, 0), App.Vector(0, 0, 1), 0.2), math.radians(-45), math.radians(45)),
    Part.LineSegment(App.Vector(2.33, -1.12, 0), App.Vector(-0.03, 1.24, 0)),
    Part.ArcOfCircle(Part.Circle(App.Vector(-0.17, 1.1, 0), App.Vector(0, 0, 1), 0.2), math.radians(45), math.radians(80)),
    Part.LineSegment(App.Vector(-0.13, 1.29, 0), App.Vector(-1.48, 1.53, 0)),
    Part.ArcOfCircle(Part.Circle(App.Vector(-1.52, 1.33, 0), App.Vector(0, 0, 1), 0.2), math.radians(80), math.radians(190)),
    Part.LineSegment(App.Vector(-1.71, 1.29, 0), App.Vector(-1.48, -0.05, 0)),
    Part.ArcOfCircle(Part.Circle(App.Vector(-1.28, -0.02, 0), App.Vector(0, 0, 1), 0.2), math.radians(-170), math.radians(-135)),
    Part.LineSegment(App.Vector(-1.42, -0.16, 0), App.Vector(0.94, -2.52, 0)),
    Part.ArcOfCircle(Part.Circle(App.Vector(1.08, -2.38, 0), App.Vector(0, 0, 1), 0.2), math.radians(-135), math.radians(-45)),
    Part.LineSegment(App.Vector(1.85, -3.15, 0), App.Vector(2.96, -2.04, 0)),
    Part.ArcOfCircle(Part.Circle(App.Vector(2.82, -1.89, 0), App.Vector(0, 0, 1), 0.2), math.radians(-45), math.radians(45)),
    Part.LineSegment(App.Vector(2.96, -1.75, 0), App.Vector(2.86, -1.65, 0)),
    Part.ArcOfCircle(Part.Circle(App.Vector(2.72, -1.79, 0), App.Vector(0, 0, 1), 0.2), math.radians(45), math.radians(135)),
    Part.LineSegment(App.Vector(2.58, -1.65, 0), App.Vector(1.47, -2.77, 0)),
    Part.ArcOfCircle(Part.Circle(App.Vector(1.61, -2.91, 0), App.Vector(0, 0, 1), 0.2), math.radians(135), math.radians(225)),
    Part.LineSegment(App.Vector(1.47, -3.05, 0), App.Vector(1.57, -3.15, 0)),
    Part.ArcOfCircle(Part.Circle(App.Vector(1.71, -3.01, 0), App.Vector(0, 0, 1), 0.2), math.radians(-135), math.radians(-45)),
], False)
sketch8.addConstraint([
    Sketcher.Constraint("Tangent", 0, 2, 1, 2),
    Sketcher.Constraint("Tangent", 1, 1, 2, 1),
    Sketcher.Constraint("Tangent", 2, 2, 3, 2),
    Sketcher.Constraint("Tangent", 3, 1, 4, 1),
    Sketcher.Constraint("Tangent", 4, 2, 5, 1),
    Sketcher.Constraint("Tangent", 5, 2, 6, 1),
    Sketcher.Constraint("Tangent", 6, 2, 7, 2),
    Sketcher.Constraint("Tangent", 7, 1, 8, 1),
    Sketcher.Constraint("Tangent", 8, 2, 9, 1),
    Sketcher.Constraint("Tangent", 9, 2, 10, 1),
    Sketcher.Constraint("Tangent", 10, 2, 11, 1),
    Sketcher.Constraint("Tangent", 11, 2, 12, 1),
    Sketcher.Constraint("Tangent", 12, 2, 13, 2),
    Sketcher.Constraint("Tangent", 13, 1, 14, 1),
    Sketcher.Constraint("Tangent", 14, 2, 15, 2),
    Sketcher.Constraint("Tangent", 15, 1, 16, 1),
    Sketcher.Constraint("Tangent", 16, 2, 17, 2),
    Sketcher.Constraint("Tangent", 17, 1, 18, 1),
    Sketcher.Constraint("Tangent", 18, 2, 19, 2),
    Sketcher.Constraint("Tangent", 19, 1, 20, 1),
    Sketcher.Constraint("Tangent", 20, 2, 21, 1),
    Sketcher.Constraint("Tangent", 21, 2, 22, 1),
    Sketcher.Constraint("Tangent", 22, 2, 23, 1),
    Sketcher.Constraint("Tangent", 23, 2, 24, 1),
    Sketcher.Constraint("Tangent", 24, 2, 25, 2),
    Sketcher.Constraint("Tangent", 25, 1, 26, 1),
    Sketcher.Constraint("Tangent", 26, 2, 27, 1),
    Sketcher.Constraint("Tangent", 27, 2, 28, 1),
    Sketcher.Constraint("Tangent", 28, 2, 29, 2),
    Sketcher.Constraint("Tangent", 29, 1, 30, 1),
    Sketcher.Constraint("Tangent", 30, 2, 31, 2),
    Sketcher.Constraint("Tangent", 31, 1, 0, 1),
    Sketcher.Constraint("Tangent", 32, 2, 33, 1),
    Sketcher.Constraint("Tangent", 33, 2, 34, 1),
    Sketcher.Constraint("Tangent", 34, 2, 35, 1),
    Sketcher.Constraint("Tangent", 35, 2, 36, 1),
    Sketcher.Constraint("Tangent", 36, 2, 37, 1),
    Sketcher.Constraint("Tangent", 37, 2, 38, 1),
    Sketcher.Constraint("Tangent", 38, 2, 39, 1),
    Sketcher.Constraint("Tangent", 39, 2, 40, 1),
    Sketcher.Constraint("Tangent", 40, 2, 41, 1),
    Sketcher.Constraint("Tangent", 41, 2, 32, 1),
    Sketcher.Constraint("Tangent", 42, 2, 43, 1),
    Sketcher.Constraint("Tangent", 43, 2, 44, 1),
    Sketcher.Constraint("Tangent", 44, 2, 45, 1),
    Sketcher.Constraint("Tangent", 45, 2, 46, 1),
    Sketcher.Constraint("Tangent", 46, 2, 47, 1),
    Sketcher.Constraint("Tangent", 47, 2, 48, 1),
    Sketcher.Constraint("Tangent", 48, 2, 49, 1),
    Sketcher.Constraint("Tangent", 49, 2, 42, 1),
    Sketcher.Constraint("Equal", 1, 3),
    Sketcher.Constraint("Equal", 3, 5),
    Sketcher.Constraint("Equal", 5, 7),
    Sketcher.Constraint("Equal", 7, 9),
    Sketcher.Constraint("Equal", 9, 11),
    Sketcher.Constraint("Equal", 11, 13),
    Sketcher.Constraint("Equal", 13, 15),
    Sketcher.Constraint("Equal", 15, 17),
    Sketcher.Constraint("Equal", 17, 19),
    Sketcher.Constraint("Equal", 19, 21),
    Sketcher.Constraint("Equal", 21, 23),
    Sketcher.Constraint("Equal", 23, 25),
    Sketcher.Constraint("Equal", 25, 27),
    Sketcher.Constraint("Equal", 27, 29),
    Sketcher.Constraint("Equal", 29, 31),
    Sketcher.Constraint("Equal", 31, 33),
    Sketcher.Constraint("Equal", 33, 35),
    Sketcher.Constraint("Equal", 35, 37),
    Sketcher.Constraint("Equal", 37, 39),
    Sketcher.Constraint("Equal", 39, 41),
    Sketcher.Constraint("Equal", 41, 43),
    Sketcher.Constraint("Equal", 43, 45),
    Sketcher.Constraint("Equal", 45, 47),
    Sketcher.Constraint("Equal", 47, 49),
    Sketcher.Constraint("Perpendicular", 0, 2),
    Sketcher.Constraint("Perpendicular", 2, 4),
    Sketcher.Constraint("Perpendicular", 4, 6),
    Sketcher.Constraint("Parallel", 6, 10),
    Sketcher.Constraint("Perpendicular", 10, 12),
    Sketcher.Constraint("Perpendicular", 12, 14),
    Sketcher.Constraint("Perpendicular", 14, 16),
    Sketcher.Constraint("Perpendicular", 16, 18),
    Sketcher.Constraint("Perpendicular", 18, 20),
    Sketcher.Constraint("Perpendicular", 20, 22),
    Sketcher.Constraint("Parallel", 22, 26),
    Sketcher.Constraint("Perpendicular", 26, 28),
    Sketcher.Constraint("Perpendicular", 28, 30),
    Sketcher.Constraint("Perpendicular", 30, 32),
    Sketcher.Constraint("Perpendicular", 32, 34),
    Sketcher.Constraint("Parallel", 24, 36),
    Sketcher.Constraint("Parallel", 8, 38),
    Sketcher.Constraint("Parallel", 34, 40),
    Sketcher.Constraint("Perpendicular", 40, 42),
    Sketcher.Constraint("Perpendicular", 42, 44),
    Sketcher.Constraint("Perpendicular", 44, 46),
    Sketcher.Constraint("Perpendicular", 46, 48),
    Sketcher.Constraint("Horizontal", 0, 2, 1, 1),
    Sketcher.Constraint("Equal", 14, 18),
    Sketcher.Constraint("Equal", 12, 20),
    Sketcher.Constraint("Equal", 10, 22),
    Sketcher.Constraint("Equal", 8, 24),
    Sketcher.Constraint("Equal", 6, 26),
    Sketcher.Constraint("Equal", 4, 28),
    Sketcher.Constraint("Equal", 2, 30),
    Sketcher.Constraint("Equal", 36, 38),
    Sketcher.Constraint("Equal", 32, 42),
    Sketcher.Constraint("Radius", 1, Q("0.2 mm")),
    Sketcher.Constraint("Distance", 8, Q("1.824699 mm")),
    Sketcher.Constraint("Distance", 14, Q("0.183901 mm")),
    Sketcher.Constraint("DistanceX", 19, 3, -1, 1, Q("3.398299 mm")),
    Sketcher.Constraint("DistanceX", 12, 2, -1, 1, Q("4.1095 mm")),
    Sketcher.Constraint("DistanceX", -1, 1, 42, 2, Q("2.963799 mm")),
    Sketcher.Constraint("Distance", 0, Q("3.475862 mm")),
    Sketcher.Constraint("Distance", 2, Q("0.535331 mm")),
    Sketcher.Constraint("Distance", 4, Q("0.106659 mm")),
    Sketcher.Constraint("Distance", 6, Q("4.60339 mm")),
    Sketcher.Constraint("Distance", 34, Q("3.33809 mm")),
    Sketcher.Constraint("Distance", 36, Q("1.367731 mm")),
    Sketcher.Constraint("Distance", 44, Q("0.14208 mm")),
    Sketcher.Constraint("DistanceX", 7, 3, -1, 1, Q("1.710872 mm")),
    Sketcher.Constraint("DistanceX", 21, 3, -1, 1, Q("3.18387 mm")),
    Sketcher.Constraint("DistanceY", -1, 1, 21, 3, Q("3.71233 mm")),
    Sketcher.Constraint("DistanceY", 33, 3, -1, 1, Q("1.264861 mm")),
    Sketcher.Constraint("DistanceX", 35, 3, -1, 1, Q("0.167729 mm")),
    Sketcher.Constraint("DistanceY", 43, 3, -1, 1, Q("1.894582 mm")),
])
pocket4 = body.newObject("PartDesign::Pocket", "Pocket003")
pocket4.Profile = sketch8
pocket4.Length = 0.4
pocket4.Reversed = True

doc.recompute()
